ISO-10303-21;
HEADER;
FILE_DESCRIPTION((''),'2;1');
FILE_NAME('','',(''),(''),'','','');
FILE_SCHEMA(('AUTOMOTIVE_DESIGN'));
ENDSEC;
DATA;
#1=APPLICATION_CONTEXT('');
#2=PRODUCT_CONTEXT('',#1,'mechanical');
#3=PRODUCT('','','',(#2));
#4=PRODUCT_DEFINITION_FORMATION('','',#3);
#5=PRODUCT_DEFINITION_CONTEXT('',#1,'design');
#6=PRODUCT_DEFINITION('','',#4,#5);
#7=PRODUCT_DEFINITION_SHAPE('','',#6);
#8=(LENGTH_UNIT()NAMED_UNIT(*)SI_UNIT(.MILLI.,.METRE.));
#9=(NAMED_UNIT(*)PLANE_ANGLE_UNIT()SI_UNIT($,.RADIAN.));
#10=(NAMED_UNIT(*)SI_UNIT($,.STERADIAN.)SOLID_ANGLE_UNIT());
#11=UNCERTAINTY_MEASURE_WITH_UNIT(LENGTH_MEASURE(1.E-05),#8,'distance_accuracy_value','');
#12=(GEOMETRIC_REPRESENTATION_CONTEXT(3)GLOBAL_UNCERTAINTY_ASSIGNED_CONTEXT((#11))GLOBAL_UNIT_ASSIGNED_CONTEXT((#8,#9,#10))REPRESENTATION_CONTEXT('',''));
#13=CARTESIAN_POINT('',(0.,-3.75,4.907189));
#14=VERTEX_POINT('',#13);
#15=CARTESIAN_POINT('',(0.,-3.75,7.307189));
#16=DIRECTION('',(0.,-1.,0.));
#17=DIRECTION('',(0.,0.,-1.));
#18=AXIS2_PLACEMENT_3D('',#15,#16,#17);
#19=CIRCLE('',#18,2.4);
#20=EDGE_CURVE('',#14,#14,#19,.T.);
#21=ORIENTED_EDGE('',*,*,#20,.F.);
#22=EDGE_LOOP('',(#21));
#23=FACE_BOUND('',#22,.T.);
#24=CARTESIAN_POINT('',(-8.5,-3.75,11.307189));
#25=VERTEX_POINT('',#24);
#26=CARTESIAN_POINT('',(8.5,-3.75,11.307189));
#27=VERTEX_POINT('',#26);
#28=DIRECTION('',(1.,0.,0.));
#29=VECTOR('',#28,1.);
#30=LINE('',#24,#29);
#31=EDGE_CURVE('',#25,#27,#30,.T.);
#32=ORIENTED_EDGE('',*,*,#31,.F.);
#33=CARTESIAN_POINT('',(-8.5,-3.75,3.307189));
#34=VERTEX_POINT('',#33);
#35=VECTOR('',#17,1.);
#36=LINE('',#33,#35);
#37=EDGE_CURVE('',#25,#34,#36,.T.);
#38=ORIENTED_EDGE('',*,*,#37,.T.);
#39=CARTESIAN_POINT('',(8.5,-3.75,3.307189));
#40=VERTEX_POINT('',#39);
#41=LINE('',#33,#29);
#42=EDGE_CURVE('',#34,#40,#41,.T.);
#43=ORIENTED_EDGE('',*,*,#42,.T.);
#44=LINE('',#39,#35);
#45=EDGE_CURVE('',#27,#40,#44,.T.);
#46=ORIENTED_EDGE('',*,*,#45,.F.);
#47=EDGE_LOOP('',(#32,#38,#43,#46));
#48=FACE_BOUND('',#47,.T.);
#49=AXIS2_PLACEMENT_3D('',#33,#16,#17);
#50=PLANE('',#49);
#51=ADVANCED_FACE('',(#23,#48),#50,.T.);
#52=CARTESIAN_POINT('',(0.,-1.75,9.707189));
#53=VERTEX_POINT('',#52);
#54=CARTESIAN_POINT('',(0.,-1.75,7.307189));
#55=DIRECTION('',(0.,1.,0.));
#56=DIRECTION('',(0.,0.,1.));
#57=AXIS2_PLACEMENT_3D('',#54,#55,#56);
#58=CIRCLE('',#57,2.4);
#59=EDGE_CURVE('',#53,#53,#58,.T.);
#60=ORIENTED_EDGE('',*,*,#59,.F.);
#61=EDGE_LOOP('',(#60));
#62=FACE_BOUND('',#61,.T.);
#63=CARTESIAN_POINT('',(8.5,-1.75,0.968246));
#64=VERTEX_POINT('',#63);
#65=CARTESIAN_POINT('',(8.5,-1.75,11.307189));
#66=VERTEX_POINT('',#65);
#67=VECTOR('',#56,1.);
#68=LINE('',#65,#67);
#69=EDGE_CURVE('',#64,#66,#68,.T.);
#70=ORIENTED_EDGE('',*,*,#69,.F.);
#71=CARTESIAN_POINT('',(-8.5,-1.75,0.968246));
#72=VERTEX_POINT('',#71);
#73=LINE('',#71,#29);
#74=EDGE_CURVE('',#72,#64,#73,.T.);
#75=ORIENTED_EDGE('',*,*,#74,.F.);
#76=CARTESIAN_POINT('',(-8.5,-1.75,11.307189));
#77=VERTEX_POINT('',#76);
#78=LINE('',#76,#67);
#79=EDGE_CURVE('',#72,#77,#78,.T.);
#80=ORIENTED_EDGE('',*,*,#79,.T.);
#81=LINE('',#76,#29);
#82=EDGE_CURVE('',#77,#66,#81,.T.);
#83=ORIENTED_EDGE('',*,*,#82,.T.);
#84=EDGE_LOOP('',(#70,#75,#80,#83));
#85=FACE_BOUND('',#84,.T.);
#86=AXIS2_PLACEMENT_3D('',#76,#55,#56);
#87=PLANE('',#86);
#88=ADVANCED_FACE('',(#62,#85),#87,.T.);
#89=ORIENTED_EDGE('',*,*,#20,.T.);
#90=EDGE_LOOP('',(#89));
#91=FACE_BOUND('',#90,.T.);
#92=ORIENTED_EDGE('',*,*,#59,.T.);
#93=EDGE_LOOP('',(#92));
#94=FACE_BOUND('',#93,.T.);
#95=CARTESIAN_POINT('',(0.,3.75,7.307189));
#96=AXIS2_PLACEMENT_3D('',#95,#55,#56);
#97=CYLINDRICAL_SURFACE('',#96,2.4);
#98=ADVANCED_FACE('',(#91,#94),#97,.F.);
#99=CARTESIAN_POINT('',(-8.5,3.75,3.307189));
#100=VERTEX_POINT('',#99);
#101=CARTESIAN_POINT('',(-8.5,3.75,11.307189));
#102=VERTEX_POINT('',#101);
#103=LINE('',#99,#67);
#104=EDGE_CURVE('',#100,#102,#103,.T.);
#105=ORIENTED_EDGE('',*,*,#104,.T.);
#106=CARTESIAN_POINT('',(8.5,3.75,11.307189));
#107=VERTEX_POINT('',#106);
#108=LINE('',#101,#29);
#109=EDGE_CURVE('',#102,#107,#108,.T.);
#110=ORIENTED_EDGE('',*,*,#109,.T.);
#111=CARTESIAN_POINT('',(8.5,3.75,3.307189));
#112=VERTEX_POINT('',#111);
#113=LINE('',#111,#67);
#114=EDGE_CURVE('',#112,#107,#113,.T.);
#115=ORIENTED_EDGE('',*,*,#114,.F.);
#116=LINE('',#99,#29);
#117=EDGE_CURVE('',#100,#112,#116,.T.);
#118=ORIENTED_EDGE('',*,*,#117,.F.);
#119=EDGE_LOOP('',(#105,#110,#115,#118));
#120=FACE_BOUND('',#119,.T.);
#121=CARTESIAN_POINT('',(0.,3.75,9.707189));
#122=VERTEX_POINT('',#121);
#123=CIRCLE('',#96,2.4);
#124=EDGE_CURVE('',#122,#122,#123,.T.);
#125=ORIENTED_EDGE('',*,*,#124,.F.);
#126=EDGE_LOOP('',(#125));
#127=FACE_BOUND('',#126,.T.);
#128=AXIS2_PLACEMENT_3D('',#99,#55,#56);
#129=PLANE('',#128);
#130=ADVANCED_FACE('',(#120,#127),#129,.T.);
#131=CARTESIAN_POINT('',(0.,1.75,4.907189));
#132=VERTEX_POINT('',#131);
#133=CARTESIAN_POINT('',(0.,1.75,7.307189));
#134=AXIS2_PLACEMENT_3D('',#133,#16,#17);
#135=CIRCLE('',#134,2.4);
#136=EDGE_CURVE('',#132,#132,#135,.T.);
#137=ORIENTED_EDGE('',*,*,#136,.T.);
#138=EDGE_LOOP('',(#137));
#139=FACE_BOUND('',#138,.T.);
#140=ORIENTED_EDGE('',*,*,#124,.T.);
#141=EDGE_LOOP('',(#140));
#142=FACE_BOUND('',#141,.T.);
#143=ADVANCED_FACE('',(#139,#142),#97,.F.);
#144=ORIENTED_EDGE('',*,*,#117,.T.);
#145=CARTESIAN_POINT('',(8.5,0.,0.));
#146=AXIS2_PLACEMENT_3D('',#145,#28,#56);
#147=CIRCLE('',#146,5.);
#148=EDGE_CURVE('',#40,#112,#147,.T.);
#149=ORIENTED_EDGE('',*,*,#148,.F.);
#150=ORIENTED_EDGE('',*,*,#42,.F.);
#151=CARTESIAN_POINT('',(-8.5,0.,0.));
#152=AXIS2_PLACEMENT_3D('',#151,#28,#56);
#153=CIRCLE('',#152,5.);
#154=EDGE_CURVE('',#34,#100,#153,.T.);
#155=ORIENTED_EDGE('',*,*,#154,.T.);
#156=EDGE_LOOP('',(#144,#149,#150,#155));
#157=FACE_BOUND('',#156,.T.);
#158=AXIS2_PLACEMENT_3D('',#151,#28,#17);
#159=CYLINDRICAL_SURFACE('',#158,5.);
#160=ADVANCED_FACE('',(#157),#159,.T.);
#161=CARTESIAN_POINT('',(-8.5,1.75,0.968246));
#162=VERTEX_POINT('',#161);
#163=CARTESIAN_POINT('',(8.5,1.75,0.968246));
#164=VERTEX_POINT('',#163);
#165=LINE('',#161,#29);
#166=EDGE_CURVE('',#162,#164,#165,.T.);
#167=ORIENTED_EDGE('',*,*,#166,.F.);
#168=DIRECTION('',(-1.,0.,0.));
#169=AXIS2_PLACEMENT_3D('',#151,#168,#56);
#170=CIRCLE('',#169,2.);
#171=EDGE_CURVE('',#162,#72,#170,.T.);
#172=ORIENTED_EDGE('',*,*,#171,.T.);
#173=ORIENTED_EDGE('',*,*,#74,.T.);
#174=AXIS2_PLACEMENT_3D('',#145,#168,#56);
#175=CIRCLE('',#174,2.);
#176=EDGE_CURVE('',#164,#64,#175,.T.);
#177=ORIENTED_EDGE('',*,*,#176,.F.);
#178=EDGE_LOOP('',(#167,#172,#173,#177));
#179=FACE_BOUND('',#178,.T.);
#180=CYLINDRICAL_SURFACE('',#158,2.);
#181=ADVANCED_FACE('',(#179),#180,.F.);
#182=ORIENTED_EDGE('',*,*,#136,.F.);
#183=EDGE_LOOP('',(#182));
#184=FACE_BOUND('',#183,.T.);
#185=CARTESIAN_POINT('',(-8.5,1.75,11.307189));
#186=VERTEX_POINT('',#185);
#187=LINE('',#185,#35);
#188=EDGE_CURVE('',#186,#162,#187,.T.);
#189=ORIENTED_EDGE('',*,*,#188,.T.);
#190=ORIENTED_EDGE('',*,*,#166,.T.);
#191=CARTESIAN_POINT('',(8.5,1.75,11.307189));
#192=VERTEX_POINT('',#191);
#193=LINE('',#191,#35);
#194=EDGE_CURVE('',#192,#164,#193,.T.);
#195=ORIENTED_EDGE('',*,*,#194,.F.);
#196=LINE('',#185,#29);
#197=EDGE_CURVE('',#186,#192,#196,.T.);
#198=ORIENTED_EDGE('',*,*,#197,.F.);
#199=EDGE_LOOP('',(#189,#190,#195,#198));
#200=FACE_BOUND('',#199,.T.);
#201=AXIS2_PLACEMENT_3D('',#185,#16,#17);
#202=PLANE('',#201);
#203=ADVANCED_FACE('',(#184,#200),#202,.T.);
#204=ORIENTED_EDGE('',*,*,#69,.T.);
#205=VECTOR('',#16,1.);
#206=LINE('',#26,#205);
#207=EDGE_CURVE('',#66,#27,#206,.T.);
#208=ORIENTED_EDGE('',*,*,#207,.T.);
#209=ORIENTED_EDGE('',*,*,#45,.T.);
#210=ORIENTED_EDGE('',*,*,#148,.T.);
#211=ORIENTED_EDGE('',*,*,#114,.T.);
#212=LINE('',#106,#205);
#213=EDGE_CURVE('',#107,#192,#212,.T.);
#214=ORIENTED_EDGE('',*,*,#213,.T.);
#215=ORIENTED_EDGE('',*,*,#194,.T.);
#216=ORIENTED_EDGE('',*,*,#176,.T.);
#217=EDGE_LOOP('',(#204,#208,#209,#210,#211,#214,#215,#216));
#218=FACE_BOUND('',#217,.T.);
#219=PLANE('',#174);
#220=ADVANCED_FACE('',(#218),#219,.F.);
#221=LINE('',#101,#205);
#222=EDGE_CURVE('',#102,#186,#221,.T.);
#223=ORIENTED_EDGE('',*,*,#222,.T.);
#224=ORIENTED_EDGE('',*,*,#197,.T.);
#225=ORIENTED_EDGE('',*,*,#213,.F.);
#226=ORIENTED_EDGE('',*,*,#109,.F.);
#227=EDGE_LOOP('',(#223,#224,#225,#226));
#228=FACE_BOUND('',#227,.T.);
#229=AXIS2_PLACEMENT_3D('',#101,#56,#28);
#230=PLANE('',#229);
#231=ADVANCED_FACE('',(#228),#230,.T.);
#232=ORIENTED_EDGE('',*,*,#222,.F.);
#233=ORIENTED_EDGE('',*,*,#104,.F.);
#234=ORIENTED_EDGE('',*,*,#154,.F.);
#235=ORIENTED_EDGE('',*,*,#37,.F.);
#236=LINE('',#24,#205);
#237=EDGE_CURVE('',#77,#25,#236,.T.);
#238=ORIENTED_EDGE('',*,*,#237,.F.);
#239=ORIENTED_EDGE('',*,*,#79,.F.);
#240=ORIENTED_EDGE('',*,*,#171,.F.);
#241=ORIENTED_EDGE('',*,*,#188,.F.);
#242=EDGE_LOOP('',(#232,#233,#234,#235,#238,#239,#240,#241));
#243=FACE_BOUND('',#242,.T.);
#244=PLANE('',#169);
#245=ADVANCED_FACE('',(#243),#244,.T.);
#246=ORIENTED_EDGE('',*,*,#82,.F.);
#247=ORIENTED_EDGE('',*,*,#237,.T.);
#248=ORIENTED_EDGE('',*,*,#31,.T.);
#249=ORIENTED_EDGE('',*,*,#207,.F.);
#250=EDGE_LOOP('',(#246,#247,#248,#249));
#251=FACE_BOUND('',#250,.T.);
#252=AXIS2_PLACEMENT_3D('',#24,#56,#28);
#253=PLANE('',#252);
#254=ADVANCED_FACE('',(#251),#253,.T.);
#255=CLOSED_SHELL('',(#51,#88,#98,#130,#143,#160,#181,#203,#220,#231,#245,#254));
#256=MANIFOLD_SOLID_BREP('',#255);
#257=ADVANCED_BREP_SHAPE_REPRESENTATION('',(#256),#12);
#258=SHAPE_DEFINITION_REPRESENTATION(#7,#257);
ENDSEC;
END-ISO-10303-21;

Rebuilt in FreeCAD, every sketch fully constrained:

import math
import FreeCAD as App
import Part
import Sketcher
from FreeCAD import Vector

doc = App.newDocument("Part")
body = doc.addObject("PartDesign::Body", "Body")

sketch1 = doc.addObject("Sketcher::SketchObject", "Sketch")
body.addObject(sketch1)
sketch1.AttachmentSupport = (doc.YZ_Plane, [""])
sketch1.MapMode = "FlatFace"
sketch1.addGeometry([
    Part.LineSegment(Vector(3.75, 3.307189, 0), Vector(3.75, 11.307189, 0)),
    Part.LineSegment(Vector(3.75, 11.307189, 0), Vector(1.75, 11.307189, 0)),
    Part.LineSegment(Vector(1.75, 11.307189, 0), Vector(1.75, 0.968246, 0)),
    Part.ArcOfCircle(Part.Circle(Vector(0, 0, 0), Vector(0, 0, 1), 2), math.radians(151.044976), math.radians(388.955024)),
    Part.LineSegment(Vector(-1.75, 0.968246, 0), Vector(-1.75, 11.307189, 0)),
    Part.LineSegment(Vector(-1.75, 11.307189, 0), Vector(-3.75, 11.307189, 0)),
    Part.LineSegment(Vector(-3.75, 11.307189, 0), Vector(-3.75, 3.307189, 0)),
    Part.ArcOfCircle(Part.Circle(Vector(0, 0, 0), Vector(0, 0, 1), 5), math.radians(138.590378), math.radians(401.409622)),
], False)
sketch1.addConstraint([
    Sketcher.Constraint("Coincident", 0, 2, 1, 1),
    Sketcher.Constraint("Coincident", 1, 2, 2, 1),
    Sketcher.Constraint("Coincident", 2, 2, 3, 2),
    Sketcher.Constraint("Coincident", 3, 1, 4, 1),
    Sketcher.Constraint("Coincident", 4, 2, 5, 1),
    Sketcher.Constraint("Coincident", 5, 2, 6, 1),
    Sketcher.Constraint("Coincident", 6, 2, 7, 1),
    Sketcher.Constraint("Coincident", 7, 2, 0, 1),
    Sketcher.Constraint("Vertical", 0),
    Sketcher.Constraint("Horizontal", 1),
    Sketcher.Constraint("Vertical", 2),
    Sketcher.Constraint("Vertical", 4),
    Sketcher.Constraint("Horizontal", 5),
    Sketcher.Constraint("Vertical", 6),
    Sketcher.Constraint("Coincident", 3, 3, -1, 1),
    Sketcher.Constraint("Coincident", 7, 3, -1, 1),
    Sketcher.Constraint("Symmetric", 1, 2, 4, 2, -2),
    Sketcher.Constraint("Horizontal", 6, 2, 7, 2),
    Sketcher.Constraint("Radius", 3, 2.0),
    Sketcher.Constraint("Radius", 7, 5.0),
    Sketcher.Constraint("DistanceX", 1, 2, 1, 1, 2.0),
    Sketcher.Constraint("DistanceY", 0, 1, 0, 2, 8.0),
    Sketcher.Constraint("DistanceX", 3, 1, 2, 2, 3.5),
])
pad1 = doc.addObject("PartDesign::Pad", "Pad")
body.addObject(pad1)
pad1.Profile = sketch1
pad1.Type = "TwoLengths"
pad1.Length = 8.5
pad1.Length2 = 8.5

sketch2 = doc.addObject("Sketcher::SketchObject", "Sketch001")
body.addObject(sketch2)
sketch2.AttachmentSupport = (doc.XZ_Plane, [""])
sketch2.MapMode = "FlatFace"
sketch2.AttachmentOffset = App.Placement(Vector(0, 0, -3.75), App.Rotation())
sketch2.addGeometry(Part.Circle(Vector(0, 7.307189, 0), Vector(0, 0, 1), 2.4), False)
sketch2.addConstraint([
    Sketcher.Constraint("PointOnObject", 0, 3, -2),
    Sketcher.Constraint("Diameter", 0, 4.8),
    Sketcher.Constraint("DistanceY", -1, 1, 0, 3, 7.307189),
])
doc.recompute()
hole = doc.addObject("PartDesign::Hole", "Hole")
body.addObject(hole)
hole.Profile = sketch2
hole.ThreadType = "None"
hole.Diameter = 4.8
hole.DepthType = "ThroughAll"
hole.Reversed = True

doc.recompute()
